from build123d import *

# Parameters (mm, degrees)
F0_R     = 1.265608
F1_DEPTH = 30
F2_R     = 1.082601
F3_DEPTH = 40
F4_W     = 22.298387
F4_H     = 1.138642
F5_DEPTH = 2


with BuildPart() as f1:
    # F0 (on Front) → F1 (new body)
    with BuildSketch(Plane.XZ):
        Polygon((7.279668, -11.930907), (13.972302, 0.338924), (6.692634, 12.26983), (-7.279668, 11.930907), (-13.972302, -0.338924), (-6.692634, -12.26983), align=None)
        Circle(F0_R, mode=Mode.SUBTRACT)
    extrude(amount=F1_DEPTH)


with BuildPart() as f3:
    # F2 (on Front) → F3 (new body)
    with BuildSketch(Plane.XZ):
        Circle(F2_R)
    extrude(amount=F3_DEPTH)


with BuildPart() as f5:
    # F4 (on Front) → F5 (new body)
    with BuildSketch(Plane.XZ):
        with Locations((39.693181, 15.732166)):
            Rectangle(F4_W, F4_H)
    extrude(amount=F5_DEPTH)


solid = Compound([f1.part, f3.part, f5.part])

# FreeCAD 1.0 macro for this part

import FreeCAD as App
import Part
import Sketcher
from FreeCAD import Vector

doc = App.newDocument("Part")
body = doc.addObject("PartDesign::Body", "Body")

# Sketch on XZ plane
sketch1 = body.newObject("Sketcher::SketchObject", "Sketch")
sketch1.AttachmentSupport = (doc.getObject("XZ_Plane"), [""])
sketch1.MapMode = "FlatFace"
sketch1.addGeometry([
    Part.LineSegment(Vector(7.3, -11.9, 0), Vector(14, 0.3, 0)),  # 0
    Part.LineSegment(Vector(14, 0.3, 0), Vector(6.7, 12.3, 0)),  # 1
    Part.LineSegment(Vector(6.7, 12.3, 0), Vector(-7.3, 11.9, 0)),  # 2
    Part.LineSegment(Vector(-7.3, 11.9, 0), Vector(-14, -0.3, 0)),  # 3
    Part.LineSegment(Vector(-14, -0.3, 0), Vector(-6.7, -12.3, 0)),  # 4
    Part.LineSegment(Vector(-6.7, -12.3, 0), Vector(7.3, -11.9, 0)),  # 5
    Part.Circle(Vector(0, 0, 0), Vector(0, 0, 1), 1.3),  # 6
], False)
sketch1.addConstraint([
    Sketcher.Constraint("Coincident", 0, 2, 1, 1),
    Sketcher.Constraint("Coincident", 1, 2, 2, 1),
    Sketcher.Constraint("Coincident", 2, 2, 3, 1),
    Sketcher.Constraint("Coincident", 3, 2, 4, 1),
    Sketcher.Constraint("Coincident", 4, 2, 5, 1),
    Sketcher.Constraint("Coincident", 5, 2, 0, 1),
    Sketcher.Constraint("Coincident", 6, 3, -1, 1),
    Sketcher.Constraint("Symmetric", 0, 2, 3, 2, -1, 1),
    Sketcher.Constraint("Symmetric", 1, 2, 4, 2, -1, 1),
    Sketcher.Constraint("Symmetric", 2, 2, 5, 2, -1, 1),
    Sketcher.Constraint("Equal", 0, 1),
    Sketcher.Constraint("Equal", 1, 2),
    Sketcher.Constraint("Diameter", 6, 2.531216),
    Sketcher.Constraint("DistanceX", 2, 2, 1, 2, 13.972302),
    Sketcher.Constraint("Distance", 1, 13.976412),
    Sketcher.Constraint("DistanceY", -1, 1, 1, 2, 12.26983),
    Sketcher.Constraint("DistanceX", 1, 2, 0, 2, 7.279668),
])
pad1 = body.newObject("PartDesign::Pad", "Pad")
pad1.Profile = sketch1
pad1.Length = 30
body2 = doc.addObject("PartDesign::Body", "Body001")

# Sketch on XZ plane
sketch2 = body2.newObject("Sketcher::SketchObject", "Sketch001")
sketch2.AttachmentSupport = (doc.getObject("XZ_Plane001"), [""])
sketch2.MapMode = "FlatFace"
sketch2.addGeometry(Part.Circle(Vector(0, 0, 0), Vector(0, 0, 1), 1.1), False)
sketch2.addConstraint([
    Sketcher.Constraint("Coincident", 0, 3, -1, 1),
    Sketcher.Constraint("Diameter", 0, 2.165202),
])
pad2 = body2.newObject("PartDesign::Pad", "Pad001")
pad2.Profile = sketch2
pad2.Length = 40
body3 = doc.addObject("PartDesign::Body", "Body002")

# Sketch on XZ plane
sketch3 = body3.newObject("Sketcher::SketchObject", "Sketch002")
sketch3.AttachmentSupport = (doc.getObject("XZ_Plane002"), [""])
sketch3.MapMode = "FlatFace"
sketch3.addGeometry([
    Part.LineSegment(Vector(28.5, 16.3, 0), Vector(28.5, 15.2, 0)),
    Part.LineSegment(Vector(28.5, 15.2, 0), Vector(50.8, 15.2, 0)),
    Part.LineSegment(Vector(50.8, 15.2, 0), Vector(50.8, 16.3, 0)),
    Part.LineSegment(Vector(50.8, 16.3, 0), Vector(28.5, 16.3, 0)),
], False)
sketch3.addConstraint([
    Sketcher.Constraint("Coincident", 0, 2, 1, 1),
    Sketcher.Constraint("Coincident", 1, 2, 2, 1),
    Sketcher.Constraint("Coincident", 2, 2, 3, 1),
    Sketcher.Constraint("Coincident", 3, 2, 0, 1),
    Sketcher.Constraint("Vertical", 0),
    Sketcher.Constraint("Horizontal", 1),
    Sketcher.Constraint("Vertical", 2),
    Sketcher.Constraint("Horizontal", 3),
    Sketcher.Constraint("DistanceX", 1, 1, 1, 2, 22.298387),
    Sketcher.Constraint("DistanceY", 0, 2, 0, 1, 1.138642),
    Sketcher.Constraint("DistanceX", -1, 1, 0, 2, 28.543988),
    Sketcher.Constraint("DistanceY", -1, 1, 0, 2, 15.162845),
])
pad3 = body3.newObject("PartDesign::Pad", "Pad002")
pad3.Profile = sketch3
pad3.Length = 2

doc.recompute()
